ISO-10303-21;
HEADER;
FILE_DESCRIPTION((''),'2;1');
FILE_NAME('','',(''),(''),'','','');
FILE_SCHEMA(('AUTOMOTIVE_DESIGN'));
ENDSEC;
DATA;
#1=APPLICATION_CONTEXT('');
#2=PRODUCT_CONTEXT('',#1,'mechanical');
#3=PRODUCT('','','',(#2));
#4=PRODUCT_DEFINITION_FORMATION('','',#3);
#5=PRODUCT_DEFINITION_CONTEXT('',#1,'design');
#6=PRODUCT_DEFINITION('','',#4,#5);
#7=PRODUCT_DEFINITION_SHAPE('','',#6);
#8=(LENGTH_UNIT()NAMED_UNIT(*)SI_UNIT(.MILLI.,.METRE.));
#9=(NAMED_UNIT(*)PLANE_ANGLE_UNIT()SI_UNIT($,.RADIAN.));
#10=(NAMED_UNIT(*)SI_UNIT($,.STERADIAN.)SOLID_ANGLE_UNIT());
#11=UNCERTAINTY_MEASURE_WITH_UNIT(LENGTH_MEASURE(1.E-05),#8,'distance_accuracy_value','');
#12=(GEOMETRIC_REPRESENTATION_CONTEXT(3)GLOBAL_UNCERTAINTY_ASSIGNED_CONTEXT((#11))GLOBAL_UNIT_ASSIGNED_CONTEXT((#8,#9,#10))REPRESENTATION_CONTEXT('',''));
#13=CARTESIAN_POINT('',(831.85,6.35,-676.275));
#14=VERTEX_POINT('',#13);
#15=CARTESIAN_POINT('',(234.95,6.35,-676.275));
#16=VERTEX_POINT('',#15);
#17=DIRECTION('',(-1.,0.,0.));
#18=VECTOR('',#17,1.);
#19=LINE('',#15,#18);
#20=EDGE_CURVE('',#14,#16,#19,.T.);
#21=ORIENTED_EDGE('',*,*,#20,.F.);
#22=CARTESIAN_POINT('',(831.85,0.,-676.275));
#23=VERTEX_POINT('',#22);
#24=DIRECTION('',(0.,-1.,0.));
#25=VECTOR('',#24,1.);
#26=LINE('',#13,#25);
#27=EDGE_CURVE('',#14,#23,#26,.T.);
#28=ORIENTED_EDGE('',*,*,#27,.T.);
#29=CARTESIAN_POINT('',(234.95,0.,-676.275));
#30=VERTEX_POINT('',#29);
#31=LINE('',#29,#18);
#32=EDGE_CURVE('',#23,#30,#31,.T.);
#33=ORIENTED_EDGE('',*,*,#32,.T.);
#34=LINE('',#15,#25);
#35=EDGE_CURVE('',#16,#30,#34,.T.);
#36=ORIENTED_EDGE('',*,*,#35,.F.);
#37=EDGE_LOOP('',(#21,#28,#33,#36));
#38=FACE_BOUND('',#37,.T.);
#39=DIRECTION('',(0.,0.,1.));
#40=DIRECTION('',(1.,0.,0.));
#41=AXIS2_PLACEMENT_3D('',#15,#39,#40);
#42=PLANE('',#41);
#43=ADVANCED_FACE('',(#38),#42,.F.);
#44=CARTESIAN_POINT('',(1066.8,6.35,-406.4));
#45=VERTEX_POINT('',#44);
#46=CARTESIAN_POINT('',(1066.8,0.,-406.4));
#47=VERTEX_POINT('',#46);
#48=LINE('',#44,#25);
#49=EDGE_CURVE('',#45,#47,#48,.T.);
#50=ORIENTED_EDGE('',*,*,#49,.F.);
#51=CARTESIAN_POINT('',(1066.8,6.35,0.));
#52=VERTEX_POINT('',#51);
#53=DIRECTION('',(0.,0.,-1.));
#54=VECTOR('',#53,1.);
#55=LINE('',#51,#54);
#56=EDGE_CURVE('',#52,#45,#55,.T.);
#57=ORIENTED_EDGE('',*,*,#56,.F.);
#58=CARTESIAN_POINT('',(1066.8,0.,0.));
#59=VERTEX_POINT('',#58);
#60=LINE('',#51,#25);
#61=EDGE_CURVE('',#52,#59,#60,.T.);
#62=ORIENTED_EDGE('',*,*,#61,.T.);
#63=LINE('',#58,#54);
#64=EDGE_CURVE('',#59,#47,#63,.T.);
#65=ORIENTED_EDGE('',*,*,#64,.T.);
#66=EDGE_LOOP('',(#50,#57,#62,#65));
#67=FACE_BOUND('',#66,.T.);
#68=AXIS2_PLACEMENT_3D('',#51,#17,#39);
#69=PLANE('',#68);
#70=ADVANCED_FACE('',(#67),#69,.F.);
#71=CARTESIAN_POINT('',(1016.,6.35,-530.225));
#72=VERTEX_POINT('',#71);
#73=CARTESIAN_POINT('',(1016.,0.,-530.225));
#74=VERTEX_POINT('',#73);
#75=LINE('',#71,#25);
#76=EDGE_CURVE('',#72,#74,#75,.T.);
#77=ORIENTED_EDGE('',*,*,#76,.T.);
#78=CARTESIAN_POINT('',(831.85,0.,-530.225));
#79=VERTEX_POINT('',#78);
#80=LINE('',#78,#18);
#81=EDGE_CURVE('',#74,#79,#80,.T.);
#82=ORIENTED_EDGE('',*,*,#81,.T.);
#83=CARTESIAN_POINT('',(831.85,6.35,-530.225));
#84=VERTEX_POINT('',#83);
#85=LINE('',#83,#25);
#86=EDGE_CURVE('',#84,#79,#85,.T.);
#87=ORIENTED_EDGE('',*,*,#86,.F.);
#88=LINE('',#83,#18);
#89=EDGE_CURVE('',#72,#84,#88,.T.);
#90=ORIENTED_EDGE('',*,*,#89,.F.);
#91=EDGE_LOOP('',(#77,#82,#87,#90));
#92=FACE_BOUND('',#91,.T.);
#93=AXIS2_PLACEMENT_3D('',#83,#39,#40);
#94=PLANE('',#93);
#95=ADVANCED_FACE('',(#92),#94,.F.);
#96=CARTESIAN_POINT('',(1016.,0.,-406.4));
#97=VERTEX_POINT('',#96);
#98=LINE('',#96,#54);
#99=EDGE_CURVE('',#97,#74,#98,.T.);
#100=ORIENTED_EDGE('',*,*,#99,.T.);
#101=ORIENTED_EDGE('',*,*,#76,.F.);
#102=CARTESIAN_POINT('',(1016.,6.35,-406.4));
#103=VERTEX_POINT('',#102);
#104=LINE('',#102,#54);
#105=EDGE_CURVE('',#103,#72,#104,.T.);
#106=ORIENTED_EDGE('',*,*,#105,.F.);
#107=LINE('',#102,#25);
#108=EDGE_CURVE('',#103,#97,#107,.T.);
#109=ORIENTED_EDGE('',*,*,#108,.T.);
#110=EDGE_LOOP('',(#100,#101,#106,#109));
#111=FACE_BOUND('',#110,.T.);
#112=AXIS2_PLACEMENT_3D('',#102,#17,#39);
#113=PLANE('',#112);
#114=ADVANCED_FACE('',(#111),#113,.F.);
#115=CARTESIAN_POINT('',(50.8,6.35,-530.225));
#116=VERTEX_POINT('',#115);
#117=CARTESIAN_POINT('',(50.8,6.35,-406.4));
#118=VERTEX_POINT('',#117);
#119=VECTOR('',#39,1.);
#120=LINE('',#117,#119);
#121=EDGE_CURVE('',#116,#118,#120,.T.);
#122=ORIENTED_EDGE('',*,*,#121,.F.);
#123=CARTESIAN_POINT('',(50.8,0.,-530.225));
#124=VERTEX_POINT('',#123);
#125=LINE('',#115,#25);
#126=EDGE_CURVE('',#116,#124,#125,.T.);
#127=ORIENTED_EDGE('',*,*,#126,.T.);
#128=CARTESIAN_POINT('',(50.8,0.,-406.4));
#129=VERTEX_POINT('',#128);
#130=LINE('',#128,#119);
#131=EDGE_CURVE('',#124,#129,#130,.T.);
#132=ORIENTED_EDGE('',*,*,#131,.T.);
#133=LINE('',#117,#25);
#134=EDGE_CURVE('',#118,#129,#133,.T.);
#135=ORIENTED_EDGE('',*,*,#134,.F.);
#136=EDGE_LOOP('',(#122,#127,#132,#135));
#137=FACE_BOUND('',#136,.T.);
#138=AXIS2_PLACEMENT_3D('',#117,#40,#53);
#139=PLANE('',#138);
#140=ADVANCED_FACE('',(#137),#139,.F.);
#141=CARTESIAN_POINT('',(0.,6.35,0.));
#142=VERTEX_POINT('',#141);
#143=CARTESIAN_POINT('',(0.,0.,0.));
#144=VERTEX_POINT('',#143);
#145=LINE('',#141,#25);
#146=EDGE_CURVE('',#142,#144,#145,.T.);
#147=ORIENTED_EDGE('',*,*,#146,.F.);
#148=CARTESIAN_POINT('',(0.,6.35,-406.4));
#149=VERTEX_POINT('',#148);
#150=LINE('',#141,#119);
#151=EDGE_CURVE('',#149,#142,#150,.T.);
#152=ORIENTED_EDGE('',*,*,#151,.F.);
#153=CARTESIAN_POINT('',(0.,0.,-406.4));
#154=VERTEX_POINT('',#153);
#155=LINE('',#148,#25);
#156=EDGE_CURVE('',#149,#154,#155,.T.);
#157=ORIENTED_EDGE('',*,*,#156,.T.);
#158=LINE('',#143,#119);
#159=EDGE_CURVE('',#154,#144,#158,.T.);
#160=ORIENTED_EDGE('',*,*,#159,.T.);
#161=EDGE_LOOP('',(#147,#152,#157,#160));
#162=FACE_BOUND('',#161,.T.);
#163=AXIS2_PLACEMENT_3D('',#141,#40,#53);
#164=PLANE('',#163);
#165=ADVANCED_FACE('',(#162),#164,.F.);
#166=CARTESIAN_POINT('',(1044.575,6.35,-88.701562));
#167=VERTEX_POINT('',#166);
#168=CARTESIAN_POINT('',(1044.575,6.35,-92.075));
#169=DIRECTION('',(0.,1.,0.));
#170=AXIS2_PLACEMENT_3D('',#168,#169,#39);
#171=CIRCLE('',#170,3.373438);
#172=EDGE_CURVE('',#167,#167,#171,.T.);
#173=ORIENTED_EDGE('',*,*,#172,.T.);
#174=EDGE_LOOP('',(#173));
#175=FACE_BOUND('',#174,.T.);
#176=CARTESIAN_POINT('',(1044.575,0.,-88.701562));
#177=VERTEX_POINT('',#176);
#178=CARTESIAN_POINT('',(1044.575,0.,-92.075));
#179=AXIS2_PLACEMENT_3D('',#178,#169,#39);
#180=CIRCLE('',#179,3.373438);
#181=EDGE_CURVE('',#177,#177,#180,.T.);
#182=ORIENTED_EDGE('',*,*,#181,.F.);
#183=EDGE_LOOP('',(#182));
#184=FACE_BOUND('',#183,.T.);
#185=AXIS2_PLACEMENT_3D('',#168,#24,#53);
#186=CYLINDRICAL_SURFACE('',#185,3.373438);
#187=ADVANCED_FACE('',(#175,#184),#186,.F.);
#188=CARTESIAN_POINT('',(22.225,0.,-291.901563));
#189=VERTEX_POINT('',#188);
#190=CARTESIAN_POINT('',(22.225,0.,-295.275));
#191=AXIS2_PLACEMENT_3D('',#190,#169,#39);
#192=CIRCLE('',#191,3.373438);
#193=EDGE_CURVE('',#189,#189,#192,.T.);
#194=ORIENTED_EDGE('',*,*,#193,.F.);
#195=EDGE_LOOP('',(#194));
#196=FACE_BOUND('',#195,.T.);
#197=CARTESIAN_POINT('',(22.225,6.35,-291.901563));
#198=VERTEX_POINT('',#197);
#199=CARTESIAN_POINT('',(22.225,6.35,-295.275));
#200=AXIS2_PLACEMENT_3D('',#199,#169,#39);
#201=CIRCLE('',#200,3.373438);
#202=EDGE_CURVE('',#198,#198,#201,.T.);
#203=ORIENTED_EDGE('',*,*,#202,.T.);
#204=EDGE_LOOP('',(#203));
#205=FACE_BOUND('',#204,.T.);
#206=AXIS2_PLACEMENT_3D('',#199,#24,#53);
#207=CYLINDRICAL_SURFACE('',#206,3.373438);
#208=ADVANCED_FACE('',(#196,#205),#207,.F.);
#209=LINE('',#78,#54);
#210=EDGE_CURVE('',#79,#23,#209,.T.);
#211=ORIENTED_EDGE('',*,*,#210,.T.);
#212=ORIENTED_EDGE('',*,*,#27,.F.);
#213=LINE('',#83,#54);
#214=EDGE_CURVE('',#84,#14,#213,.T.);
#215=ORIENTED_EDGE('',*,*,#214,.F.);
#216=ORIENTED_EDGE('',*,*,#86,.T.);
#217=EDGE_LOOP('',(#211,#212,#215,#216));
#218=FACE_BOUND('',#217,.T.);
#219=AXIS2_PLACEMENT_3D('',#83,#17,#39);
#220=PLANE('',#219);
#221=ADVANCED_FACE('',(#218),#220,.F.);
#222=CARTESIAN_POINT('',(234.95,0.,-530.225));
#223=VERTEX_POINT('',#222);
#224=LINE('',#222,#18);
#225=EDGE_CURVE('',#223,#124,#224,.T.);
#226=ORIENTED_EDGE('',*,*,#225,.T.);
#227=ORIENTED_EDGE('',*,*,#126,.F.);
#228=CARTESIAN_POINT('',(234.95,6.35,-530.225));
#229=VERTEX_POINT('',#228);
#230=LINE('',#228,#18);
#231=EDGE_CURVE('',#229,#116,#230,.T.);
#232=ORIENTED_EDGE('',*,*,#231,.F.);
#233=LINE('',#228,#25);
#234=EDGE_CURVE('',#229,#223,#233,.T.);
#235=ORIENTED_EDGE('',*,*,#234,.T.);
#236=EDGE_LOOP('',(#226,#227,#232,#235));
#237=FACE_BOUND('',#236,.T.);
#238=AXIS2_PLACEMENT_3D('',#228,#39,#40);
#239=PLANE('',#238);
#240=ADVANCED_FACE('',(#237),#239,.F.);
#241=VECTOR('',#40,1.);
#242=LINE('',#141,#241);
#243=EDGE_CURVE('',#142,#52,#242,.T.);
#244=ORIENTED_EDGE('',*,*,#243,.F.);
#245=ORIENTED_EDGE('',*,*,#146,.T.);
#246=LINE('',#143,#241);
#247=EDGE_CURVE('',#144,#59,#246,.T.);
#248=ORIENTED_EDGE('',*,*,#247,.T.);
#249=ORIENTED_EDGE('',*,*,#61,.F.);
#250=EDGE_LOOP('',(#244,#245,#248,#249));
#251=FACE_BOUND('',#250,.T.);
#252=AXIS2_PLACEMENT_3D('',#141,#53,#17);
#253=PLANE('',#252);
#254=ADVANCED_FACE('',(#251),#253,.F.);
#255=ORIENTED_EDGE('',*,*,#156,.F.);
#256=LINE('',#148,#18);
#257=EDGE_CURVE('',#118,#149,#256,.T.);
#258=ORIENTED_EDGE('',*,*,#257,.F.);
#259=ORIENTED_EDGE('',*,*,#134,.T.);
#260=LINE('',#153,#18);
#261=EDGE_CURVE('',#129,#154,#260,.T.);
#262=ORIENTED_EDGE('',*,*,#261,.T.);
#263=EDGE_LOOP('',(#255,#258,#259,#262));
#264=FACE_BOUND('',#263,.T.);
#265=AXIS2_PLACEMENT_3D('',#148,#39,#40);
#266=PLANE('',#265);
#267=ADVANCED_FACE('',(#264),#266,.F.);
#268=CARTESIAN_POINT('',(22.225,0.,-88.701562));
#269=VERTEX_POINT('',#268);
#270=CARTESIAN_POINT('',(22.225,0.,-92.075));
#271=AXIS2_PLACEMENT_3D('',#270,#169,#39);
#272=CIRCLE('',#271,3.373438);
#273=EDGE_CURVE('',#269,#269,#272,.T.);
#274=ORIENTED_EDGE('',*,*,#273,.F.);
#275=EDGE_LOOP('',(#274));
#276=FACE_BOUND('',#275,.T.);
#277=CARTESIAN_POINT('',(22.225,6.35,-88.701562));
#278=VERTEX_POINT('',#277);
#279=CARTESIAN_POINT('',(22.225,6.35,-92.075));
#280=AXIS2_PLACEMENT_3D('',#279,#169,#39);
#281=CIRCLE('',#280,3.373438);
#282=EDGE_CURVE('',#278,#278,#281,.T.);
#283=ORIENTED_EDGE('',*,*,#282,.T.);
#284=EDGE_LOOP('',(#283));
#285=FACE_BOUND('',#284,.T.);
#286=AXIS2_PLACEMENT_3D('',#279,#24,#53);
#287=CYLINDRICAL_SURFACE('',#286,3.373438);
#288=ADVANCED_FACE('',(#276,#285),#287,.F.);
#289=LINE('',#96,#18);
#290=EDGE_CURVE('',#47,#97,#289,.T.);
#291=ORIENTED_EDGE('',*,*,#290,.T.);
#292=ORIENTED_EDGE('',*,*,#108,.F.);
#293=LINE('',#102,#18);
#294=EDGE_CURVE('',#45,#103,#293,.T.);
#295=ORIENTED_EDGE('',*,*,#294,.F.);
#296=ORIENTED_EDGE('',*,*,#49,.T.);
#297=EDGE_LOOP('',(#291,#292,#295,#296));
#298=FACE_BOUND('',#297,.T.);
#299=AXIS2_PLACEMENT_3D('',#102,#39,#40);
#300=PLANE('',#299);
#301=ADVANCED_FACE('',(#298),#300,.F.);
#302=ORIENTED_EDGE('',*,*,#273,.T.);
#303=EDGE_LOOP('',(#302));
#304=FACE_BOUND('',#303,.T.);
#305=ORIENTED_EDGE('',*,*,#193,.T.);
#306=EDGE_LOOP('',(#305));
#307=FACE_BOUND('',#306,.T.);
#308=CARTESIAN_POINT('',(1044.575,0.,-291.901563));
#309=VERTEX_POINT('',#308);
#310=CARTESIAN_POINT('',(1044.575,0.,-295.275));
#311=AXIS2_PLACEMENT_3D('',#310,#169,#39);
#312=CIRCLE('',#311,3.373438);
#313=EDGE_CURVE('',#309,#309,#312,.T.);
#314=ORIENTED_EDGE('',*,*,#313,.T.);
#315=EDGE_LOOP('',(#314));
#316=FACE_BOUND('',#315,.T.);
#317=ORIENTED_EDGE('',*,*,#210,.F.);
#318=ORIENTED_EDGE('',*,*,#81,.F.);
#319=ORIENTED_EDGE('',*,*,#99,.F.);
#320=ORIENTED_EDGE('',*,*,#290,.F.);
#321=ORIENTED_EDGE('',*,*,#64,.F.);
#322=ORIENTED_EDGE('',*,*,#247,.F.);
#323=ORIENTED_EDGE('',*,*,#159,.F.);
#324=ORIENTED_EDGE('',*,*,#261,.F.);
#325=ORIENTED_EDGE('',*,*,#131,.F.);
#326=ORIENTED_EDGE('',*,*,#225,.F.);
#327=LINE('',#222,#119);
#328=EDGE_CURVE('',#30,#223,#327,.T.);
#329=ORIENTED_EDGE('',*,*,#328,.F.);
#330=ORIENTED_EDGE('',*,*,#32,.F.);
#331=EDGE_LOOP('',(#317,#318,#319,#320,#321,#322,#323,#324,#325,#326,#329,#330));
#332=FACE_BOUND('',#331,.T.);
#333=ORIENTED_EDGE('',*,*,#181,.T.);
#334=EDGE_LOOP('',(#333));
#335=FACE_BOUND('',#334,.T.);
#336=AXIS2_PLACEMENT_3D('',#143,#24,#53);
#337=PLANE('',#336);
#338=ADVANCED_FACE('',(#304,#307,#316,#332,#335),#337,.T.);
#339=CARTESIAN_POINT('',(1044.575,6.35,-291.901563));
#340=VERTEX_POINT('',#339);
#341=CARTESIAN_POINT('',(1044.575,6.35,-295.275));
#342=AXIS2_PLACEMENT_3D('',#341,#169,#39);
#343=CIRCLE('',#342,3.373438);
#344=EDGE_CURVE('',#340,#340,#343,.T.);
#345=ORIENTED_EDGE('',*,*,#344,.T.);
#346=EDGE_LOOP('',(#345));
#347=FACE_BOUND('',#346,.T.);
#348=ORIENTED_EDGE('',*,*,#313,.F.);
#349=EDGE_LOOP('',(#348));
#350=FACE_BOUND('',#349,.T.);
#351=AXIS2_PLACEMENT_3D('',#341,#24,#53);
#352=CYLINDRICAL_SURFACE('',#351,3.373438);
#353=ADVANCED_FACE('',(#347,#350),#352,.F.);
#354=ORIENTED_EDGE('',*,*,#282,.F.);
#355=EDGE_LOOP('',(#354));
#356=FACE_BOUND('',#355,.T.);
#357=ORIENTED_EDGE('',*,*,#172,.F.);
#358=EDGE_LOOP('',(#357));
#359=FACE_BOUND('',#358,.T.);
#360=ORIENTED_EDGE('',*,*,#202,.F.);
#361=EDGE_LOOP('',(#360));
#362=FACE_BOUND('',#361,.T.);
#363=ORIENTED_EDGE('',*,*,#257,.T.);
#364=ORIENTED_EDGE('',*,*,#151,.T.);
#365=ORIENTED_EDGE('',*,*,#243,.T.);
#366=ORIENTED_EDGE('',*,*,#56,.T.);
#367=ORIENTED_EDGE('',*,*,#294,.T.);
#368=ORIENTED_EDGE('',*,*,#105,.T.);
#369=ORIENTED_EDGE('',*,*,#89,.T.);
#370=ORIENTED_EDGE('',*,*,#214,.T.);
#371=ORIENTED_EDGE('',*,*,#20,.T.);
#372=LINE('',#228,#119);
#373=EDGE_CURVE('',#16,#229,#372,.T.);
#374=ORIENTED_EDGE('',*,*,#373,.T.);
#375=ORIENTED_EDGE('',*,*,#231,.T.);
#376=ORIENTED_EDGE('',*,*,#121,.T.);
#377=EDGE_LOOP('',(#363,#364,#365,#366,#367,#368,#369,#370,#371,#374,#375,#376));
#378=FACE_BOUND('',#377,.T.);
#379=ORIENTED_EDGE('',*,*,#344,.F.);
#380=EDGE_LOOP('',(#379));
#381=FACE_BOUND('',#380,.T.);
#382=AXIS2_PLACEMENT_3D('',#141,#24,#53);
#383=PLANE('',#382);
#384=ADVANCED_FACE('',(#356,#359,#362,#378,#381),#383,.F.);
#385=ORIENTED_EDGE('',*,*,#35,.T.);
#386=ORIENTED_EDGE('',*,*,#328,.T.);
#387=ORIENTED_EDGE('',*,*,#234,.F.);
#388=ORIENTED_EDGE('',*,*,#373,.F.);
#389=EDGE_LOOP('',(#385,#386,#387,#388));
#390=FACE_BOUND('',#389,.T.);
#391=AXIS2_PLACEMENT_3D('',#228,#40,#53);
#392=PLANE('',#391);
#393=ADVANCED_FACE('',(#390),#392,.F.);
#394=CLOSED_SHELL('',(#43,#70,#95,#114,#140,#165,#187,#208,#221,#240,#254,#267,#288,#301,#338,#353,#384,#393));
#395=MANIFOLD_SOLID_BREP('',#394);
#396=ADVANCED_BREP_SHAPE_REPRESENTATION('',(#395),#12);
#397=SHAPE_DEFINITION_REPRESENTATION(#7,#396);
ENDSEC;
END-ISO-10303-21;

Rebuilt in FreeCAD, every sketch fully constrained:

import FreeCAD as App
import Part
import Sketcher
Q = App.Units.Quantity


def add_polygon(sketch, points):
    """Adds a closed chain of lines whose ends are joined by coincident constraints."""
    first, n = sketch.GeometryCount, len(points)
    for a, b in zip(points, points[1:] + points[:1]):
        sketch.addGeometry(Part.LineSegment(App.Vector(*a, 0), App.Vector(*b, 0)), False)
    for i in range(n):
        sketch.addConstraint(Sketcher.Constraint("Coincident", first + i, 2, first + (i + 1) % n, 1))

doc = App.newDocument("Part")
body = doc.addObject("PartDesign::Body", "Body")

sketch1 = body.newObject("Sketcher::SketchObject", "Sketch")
sketch1.AttachmentSupport = (doc.getObject("XZ_Plane"), [""])
sketch1.MapMode = "FlatFace"
add_polygon(sketch1, [(1066.8, -406.4), (1016, -406.4), (1016, -530.2), (831.9, -530.2), (831.9, -676.3), (234.9, -676.3), (234.9, -530.2), (50.8, -530.2), (50.8, -406.4), (0, -406.4), (0, 0), (1066.8, 0)])
sketch1.addGeometry(Part.Circle(App.Vector(1044.6, -92.1, 0), App.Vector(0, 0, 1), 3.4), False)
sketch1.addGeometry(Part.Circle(App.Vector(22.2, -92.1, 0), App.Vector(0, 0, 1), 3.4), False)
sketch1.addGeometry(Part.Circle(App.Vector(1044.6, -295.3, 0), App.Vector(0, 0, 1), 3.4), False)
sketch1.addGeometry(Part.Circle(App.Vector(22.2, -295.3, 0), App.Vector(0, 0, 1), 3.4), False)
sketch1.addConstraint([
    Sketcher.Constraint("Horizontal", 0),
    Sketcher.Constraint("Vertical", 1),
    Sketcher.Constraint("Horizontal", 2),
    Sketcher.Constraint("Vertical", 3),
    Sketcher.Constraint("Horizontal", 4),
    Sketcher.Constraint("Vertical", 5),
    Sketcher.Constraint("Horizontal", 6),
    Sketcher.Constraint("Vertical", 7),
    Sketcher.Constraint("Horizontal", 8),
    Sketcher.Constraint("Vertical", 9),
    Sketcher.Constraint("Horizontal", 10),
    Sketcher.Constraint("Vertical", 11),
    Sketcher.Constraint("Coincident", 9, 2, -1, 1),
    Sketcher.Constraint("Equal", 12, 13),
    Sketcher.Constraint("Equal", 13, 14),
    Sketcher.Constraint("Equal", 14, 15),
    Sketcher.Constraint("Horizontal", 12, 3, 13, 3),
    Sketcher.Constraint("Horizontal", 14, 3, 15, 3),
    Sketcher.Constraint("Horizontal", 2, 2, 5, 2),
    Sketcher.Constraint("Horizontal", 0, 2, 7, 2),
    Sketcher.Constraint("Vertical", 12, 3, 14, 3),
    Sketcher.Constraint("Vertical", 13, 3, 15, 3),
    Sketcher.Constraint("Equal", 2, 6),
    Sketcher.Constraint("Equal", 0, 8),
    Sketcher.Constraint("DistanceX", 0, 2, 0, 1, Q("2 in")),
    Sketcher.Constraint("DistanceX", 10, 1, 10, 2, Q("42 in")),
    Sketcher.Constraint("DistanceY", 9, 1, 9, 2, Q("16 in")),
    Sketcher.Constraint("Diameter", 12, Q("0.265625 in")),
    Sketcher.Constraint("DistanceX", 4, 2, 4, 1, Q("23.5 in")),
    Sketcher.Constraint("DistanceY", 14, 3, 12, 3, Q("8 in")),
    Sketcher.Constraint("DistanceY", 3, 2, 14, 3, Q("15 in")),
    Sketcher.Constraint("DistanceY", 3, 2, 3, 1, Q("5.75 in")),
    Sketcher.Constraint("DistanceY", 1, 2, 1, 1, Q("4.875 in")),
    Sketcher.Constraint("DistanceX", 13, 3, 12, 3, Q("40.25 in")),
    Sketcher.Constraint("DistanceX", -1, 1, 12, 3, Q("41.125 in")),
])
pad1 = body.newObject("PartDesign::Pad", "Pad")
pad1.Profile = sketch1
pad1.Length = Q("0.25 in")
pad1.Reversed = True

doc.recompute()
